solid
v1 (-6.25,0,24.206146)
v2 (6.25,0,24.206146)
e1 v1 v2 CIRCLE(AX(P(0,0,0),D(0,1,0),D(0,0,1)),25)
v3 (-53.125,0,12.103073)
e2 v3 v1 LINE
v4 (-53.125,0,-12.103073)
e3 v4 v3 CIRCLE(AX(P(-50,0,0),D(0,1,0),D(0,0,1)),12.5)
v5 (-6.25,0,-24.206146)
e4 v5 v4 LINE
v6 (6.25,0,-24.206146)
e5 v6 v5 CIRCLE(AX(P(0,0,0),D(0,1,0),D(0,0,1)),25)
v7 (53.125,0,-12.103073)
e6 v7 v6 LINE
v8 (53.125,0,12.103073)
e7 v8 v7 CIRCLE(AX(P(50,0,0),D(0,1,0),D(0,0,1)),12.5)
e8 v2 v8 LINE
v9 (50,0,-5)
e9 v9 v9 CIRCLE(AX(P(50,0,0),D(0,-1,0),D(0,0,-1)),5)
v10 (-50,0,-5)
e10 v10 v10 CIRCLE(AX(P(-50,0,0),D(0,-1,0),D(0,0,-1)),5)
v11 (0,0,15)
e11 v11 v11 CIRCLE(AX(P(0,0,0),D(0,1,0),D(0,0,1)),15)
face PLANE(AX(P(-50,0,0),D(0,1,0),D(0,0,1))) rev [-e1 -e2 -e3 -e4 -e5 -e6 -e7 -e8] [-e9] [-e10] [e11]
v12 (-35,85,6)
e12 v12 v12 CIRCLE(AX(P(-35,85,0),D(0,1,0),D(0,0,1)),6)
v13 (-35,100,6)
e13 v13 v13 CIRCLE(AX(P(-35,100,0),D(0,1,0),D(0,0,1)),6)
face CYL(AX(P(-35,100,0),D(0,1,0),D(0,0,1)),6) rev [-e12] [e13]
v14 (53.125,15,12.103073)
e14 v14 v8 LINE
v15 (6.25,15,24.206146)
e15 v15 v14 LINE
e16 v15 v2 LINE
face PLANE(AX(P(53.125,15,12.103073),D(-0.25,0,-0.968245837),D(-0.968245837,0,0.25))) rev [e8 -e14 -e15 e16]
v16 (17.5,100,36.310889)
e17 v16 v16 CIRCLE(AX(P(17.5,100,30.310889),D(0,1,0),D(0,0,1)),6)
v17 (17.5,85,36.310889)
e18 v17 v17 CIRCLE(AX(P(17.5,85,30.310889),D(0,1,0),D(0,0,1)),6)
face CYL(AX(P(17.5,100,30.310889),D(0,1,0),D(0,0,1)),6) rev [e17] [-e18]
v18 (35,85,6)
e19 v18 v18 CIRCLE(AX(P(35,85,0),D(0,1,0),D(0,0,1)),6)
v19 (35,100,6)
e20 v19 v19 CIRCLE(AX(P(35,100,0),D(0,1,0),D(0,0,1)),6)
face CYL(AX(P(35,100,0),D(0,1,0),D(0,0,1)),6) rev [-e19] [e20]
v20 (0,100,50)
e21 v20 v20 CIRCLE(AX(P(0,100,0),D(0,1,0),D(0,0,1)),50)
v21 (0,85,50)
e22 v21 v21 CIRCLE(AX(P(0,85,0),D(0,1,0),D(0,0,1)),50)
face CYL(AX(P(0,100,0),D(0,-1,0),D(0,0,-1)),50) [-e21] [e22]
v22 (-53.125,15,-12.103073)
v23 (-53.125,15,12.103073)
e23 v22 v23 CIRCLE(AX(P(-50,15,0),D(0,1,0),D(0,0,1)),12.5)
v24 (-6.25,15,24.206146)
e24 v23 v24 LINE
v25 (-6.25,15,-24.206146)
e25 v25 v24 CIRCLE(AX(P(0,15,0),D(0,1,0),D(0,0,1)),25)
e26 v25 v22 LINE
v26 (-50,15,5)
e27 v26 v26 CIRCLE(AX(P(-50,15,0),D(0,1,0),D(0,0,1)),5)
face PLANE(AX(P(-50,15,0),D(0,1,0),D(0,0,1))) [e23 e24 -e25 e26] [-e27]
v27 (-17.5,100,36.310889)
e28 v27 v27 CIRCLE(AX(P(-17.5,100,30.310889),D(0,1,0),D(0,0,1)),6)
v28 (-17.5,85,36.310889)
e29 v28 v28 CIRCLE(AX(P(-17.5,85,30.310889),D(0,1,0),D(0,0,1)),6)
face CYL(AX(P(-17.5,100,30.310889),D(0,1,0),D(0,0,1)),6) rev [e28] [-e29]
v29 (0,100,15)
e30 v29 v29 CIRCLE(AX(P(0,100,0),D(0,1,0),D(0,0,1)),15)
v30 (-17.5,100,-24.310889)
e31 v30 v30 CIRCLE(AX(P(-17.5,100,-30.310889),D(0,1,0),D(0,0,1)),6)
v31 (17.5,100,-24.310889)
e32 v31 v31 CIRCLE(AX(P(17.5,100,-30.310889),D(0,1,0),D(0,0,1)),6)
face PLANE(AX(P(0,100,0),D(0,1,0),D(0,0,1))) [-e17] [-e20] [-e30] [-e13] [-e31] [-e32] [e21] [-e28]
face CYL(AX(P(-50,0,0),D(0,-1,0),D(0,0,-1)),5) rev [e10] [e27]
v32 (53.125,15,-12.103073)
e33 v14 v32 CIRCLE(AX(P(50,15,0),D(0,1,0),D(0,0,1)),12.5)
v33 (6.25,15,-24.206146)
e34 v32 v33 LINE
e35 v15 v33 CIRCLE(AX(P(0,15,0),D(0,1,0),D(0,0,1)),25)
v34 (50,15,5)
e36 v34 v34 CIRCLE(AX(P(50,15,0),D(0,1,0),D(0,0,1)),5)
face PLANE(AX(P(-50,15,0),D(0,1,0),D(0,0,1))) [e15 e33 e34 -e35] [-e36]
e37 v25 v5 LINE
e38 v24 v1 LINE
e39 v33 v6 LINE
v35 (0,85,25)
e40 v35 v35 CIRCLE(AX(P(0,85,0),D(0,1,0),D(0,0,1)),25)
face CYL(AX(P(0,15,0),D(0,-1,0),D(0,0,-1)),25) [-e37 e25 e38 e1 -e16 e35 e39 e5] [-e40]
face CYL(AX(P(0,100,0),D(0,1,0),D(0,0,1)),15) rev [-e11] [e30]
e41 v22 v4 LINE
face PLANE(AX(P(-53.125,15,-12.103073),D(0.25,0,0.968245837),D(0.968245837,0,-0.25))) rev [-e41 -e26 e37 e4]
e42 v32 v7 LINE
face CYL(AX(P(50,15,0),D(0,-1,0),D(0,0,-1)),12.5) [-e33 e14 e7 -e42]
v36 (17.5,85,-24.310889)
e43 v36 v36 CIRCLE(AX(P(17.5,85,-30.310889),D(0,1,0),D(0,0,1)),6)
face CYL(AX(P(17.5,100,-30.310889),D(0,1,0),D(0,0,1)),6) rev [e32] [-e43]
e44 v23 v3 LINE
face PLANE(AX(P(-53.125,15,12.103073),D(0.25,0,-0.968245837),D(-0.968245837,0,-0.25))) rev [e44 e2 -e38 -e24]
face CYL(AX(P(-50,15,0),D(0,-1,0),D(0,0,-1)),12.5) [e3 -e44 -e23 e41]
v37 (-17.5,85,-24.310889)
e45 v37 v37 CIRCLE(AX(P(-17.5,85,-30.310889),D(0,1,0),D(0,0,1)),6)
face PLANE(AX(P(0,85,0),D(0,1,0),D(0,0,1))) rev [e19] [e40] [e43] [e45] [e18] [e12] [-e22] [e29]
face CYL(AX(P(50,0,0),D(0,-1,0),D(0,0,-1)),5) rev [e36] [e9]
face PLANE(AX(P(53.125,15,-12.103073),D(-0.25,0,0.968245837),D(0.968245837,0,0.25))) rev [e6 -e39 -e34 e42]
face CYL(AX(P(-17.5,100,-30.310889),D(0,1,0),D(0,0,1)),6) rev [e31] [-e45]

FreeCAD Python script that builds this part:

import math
import FreeCAD as App
import Part
import Sketcher

V = App.Vector
Q = App.Units.Quantity

doc = App.newDocument("Part")
body = doc.addObject("PartDesign::Body", "Body")

# Sketch on XZ plane
sketch1 = doc.addObject("Sketcher::SketchObject", "Sketch")
body.addObject(sketch1)
sketch1.AttachmentSupport = (doc.XZ_Plane, [""])
sketch1.MapMode = "FlatFace"
sketch1.addGeometry([
    Part.LineSegment(V(-6, -24, 0), V(-53, -12, 0)),  # 0
    Part.ArcOfCircle(Part.Circle(V(-50, 0, 0), V(0, 0, 1), 12), math.radians(104), math.radians(256)),  # 1
    Part.LineSegment(V(-53, 12, 0), V(-6, 24, 0)),  # 2
    Part.ArcOfCircle(Part.Circle(V(0, 0, 0), V(0, 0, 1), 25), math.radians(76), math.radians(104)),  # 3
    Part.LineSegment(V(6, 24, 0), V(53, 12, 0)),  # 4
    Part.ArcOfCircle(Part.Circle(V(50, 0, 0), V(0, 0, 1), 12), math.radians(-76), math.radians(76)),  # 5
    Part.LineSegment(V(53, -12, 0), V(6, -24, 0)),  # 6
    Part.ArcOfCircle(Part.Circle(V(0, 0, 0), V(0, 0, 1), 25), math.radians(-104), math.radians(-76)),  # 7
], False)
sketch1.addConstraint([
    Sketcher.Constraint("Tangent", 0, 2, 1, 2),
    Sketcher.Constraint("Tangent", 1, 1, 2, 1),
    Sketcher.Constraint("Tangent", 2, 2, 3, 2),
    Sketcher.Constraint("Tangent", 3, 1, 4, 1),
    Sketcher.Constraint("Tangent", 4, 2, 5, 2),
    Sketcher.Constraint("Tangent", 5, 1, 6, 1),
    Sketcher.Constraint("Tangent", 6, 2, 7, 2),
    Sketcher.Constraint("Tangent", 7, 1, 0, 1),
    Sketcher.Constraint("Coincident", 3, 3, -1, 1),
    Sketcher.Constraint("Coincident", 7, 3, -1, 1),
    Sketcher.Constraint("Equal", 1, 5),
    Sketcher.Constraint("Equal", 3, 7),
    Sketcher.Constraint("Symmetric", 1, 3, 5, 3, -1, 1),
    Sketcher.Constraint("PointOnObject", 1, 3, -1),
    Sketcher.Constraint("Radius", 3, Q("25 mm")),
    Sketcher.Constraint("Radius", 1, Q("12.5 mm")),
    Sketcher.Constraint("DistanceX", 1, 3, -1, 1, Q("50 mm")),
])
pad1 = doc.addObject("PartDesign::Pad", "Pad")
body.addObject(pad1)
pad1.Profile = sketch1
pad1.Length = 15
pad1.Reversed = True

# Sketch on XZ plane
sketch2 = doc.addObject("Sketcher::SketchObject", "Sketch001")
body.addObject(sketch2)
sketch2.AttachmentSupport = (doc.XZ_Plane, [""])
sketch2.MapMode = "FlatFace"
sketch2.AttachmentOffset = App.Placement(V(0, 0, -15), App.Rotation())
sketch2.addGeometry(Part.Circle(V(0, 0, 0), V(0, 0, 1), 25), False)
sketch2.addConstraint([
    Sketcher.Constraint("Coincident", 0, 3, -1, 1),
    Sketcher.Constraint("Diameter", 0, Q("50 mm")),
])
pad2 = doc.addObject("PartDesign::Pad", "Pad001")
body.addObject(pad2)
pad2.Profile = sketch2
pad2.Length = 70
pad2.Reversed = True

# Sketch on XZ plane
sketch3 = doc.addObject("Sketcher::SketchObject", "Sketch002")
body.addObject(sketch3)
sketch3.AttachmentSupport = (doc.XZ_Plane, [""])
sketch3.MapMode = "FlatFace"
sketch3.AttachmentOffset = App.Placement(V(0, 0, -85), App.Rotation())
sketch3.addGeometry(Part.Circle(V(0, 0, 0), V(0, 0, 1), 50), False)
sketch3.addConstraint([
    Sketcher.Constraint("Coincident", 0, 3, -1, 1),
    Sketcher.Constraint("Diameter", 0, Q("100 mm")),
])
pad3 = doc.addObject("PartDesign::Pad", "Pad002")
body.addObject(pad3)
pad3.Profile = sketch3
pad3.Length = 15
pad3.Reversed = True

# Sketch on XZ plane
sketch4 = doc.addObject("Sketcher::SketchObject", "Sketch003")
body.addObject(sketch4)
sketch4.AttachmentSupport = (doc.XZ_Plane, [""])
sketch4.MapMode = "FlatFace"
sketch4.AttachmentOffset = App.Placement(V(0, 0, -100), App.Rotation())
sketch4.addGeometry(Part.Circle(V(0, 0, 0), V(0, 0, 1), 15), False)
sketch4.addConstraint([
    Sketcher.Constraint("Coincident", 0, 3, -1, 1),
    Sketcher.Constraint("Diameter", 0, Q("30 mm")),
])
doc.recompute()
hole = doc.addObject("PartDesign::Hole", "Hole")
body.addObject(hole)
hole.Profile = sketch4
hole.ThreadType = "None"
hole.Diameter = 30
hole.DepthType = "ThroughAll"
hole.Reversed = True

# Sketch on XZ plane
sketch5 = doc.addObject("Sketcher::SketchObject", "Sketch004")
body.addObject(sketch5)
sketch5.AttachmentSupport = (doc.XZ_Plane, [""])
sketch5.MapMode = "FlatFace"
sketch5.AttachmentOffset = App.Placement(V(0, 0, -100), App.Rotation())
sketch5.addGeometry(Part.Circle(V(35, 0, 0), V(0, 0, 1), 6), False)
sketch5.addConstraint([
    Sketcher.Constraint("PointOnObject", 0, 3, -1),
    Sketcher.Constraint("Diameter", 0, Q("12 mm")),
    Sketcher.Constraint("DistanceX", -1, 1, 0, 3, Q("35 mm")),
])
doc.recompute()
hole2 = doc.addObject("PartDesign::Hole", "Hole001")
body.addObject(hole2)
hole2.Profile = sketch5
hole2.ThreadType = "None"
hole2.Diameter = 12
hole2.DepthType = "Dimension"
hole2.Depth = 15
hole2.DrillPoint = "Flat"
hole2.Reversed = True
doc.recompute()

polarpattern = doc.addObject("PartDesign::PolarPattern", "PolarPattern")
body.addObject(polarpattern)
polarpattern.Originals = [hole2]
polarpattern.Axis = (doc.Y_Axis, [""])
polarpattern.Angle = 360
polarpattern.Occurrences = 6
body.Tip = polarpattern

# Sketch on XZ plane
sketch6 = doc.addObject("Sketcher::SketchObject", "Sketch005")
body.addObject(sketch6)
sketch6.AttachmentSupport = (doc.XZ_Plane, [""])
sketch6.MapMode = "FlatFace"
sketch6.addGeometry([
    Part.Circle(V(-50, 0, 0), V(0, 0, 1), 5),
    Part.Circle(V(50, 0, 0), V(0, 0, 1), 5),
], False)
sketch6.addConstraint([
    Sketcher.Constraint("Equal", 0, 1),
    Sketcher.Constraint("Symmetric", 0, 3, 1, 3, -1, 1),
    Sketcher.Constraint("PointOnObject", 0, 3, -1),
    Sketcher.Constraint("Diameter", 0, Q("10 mm")),
    Sketcher.Constraint("DistanceX", 0, 3, -1, 1, Q("50 mm")),
])
doc.recompute()
hole3 = doc.addObject("PartDesign::Hole", "Hole002")
body.addObject(hole3)
hole3.Profile = sketch6
hole3.ThreadType = "None"
hole3.Diameter = 10
hole3.DepthType = "Dimension"
hole3.Depth = 15
hole3.DrillPoint = "Flat"

doc.recompute()
